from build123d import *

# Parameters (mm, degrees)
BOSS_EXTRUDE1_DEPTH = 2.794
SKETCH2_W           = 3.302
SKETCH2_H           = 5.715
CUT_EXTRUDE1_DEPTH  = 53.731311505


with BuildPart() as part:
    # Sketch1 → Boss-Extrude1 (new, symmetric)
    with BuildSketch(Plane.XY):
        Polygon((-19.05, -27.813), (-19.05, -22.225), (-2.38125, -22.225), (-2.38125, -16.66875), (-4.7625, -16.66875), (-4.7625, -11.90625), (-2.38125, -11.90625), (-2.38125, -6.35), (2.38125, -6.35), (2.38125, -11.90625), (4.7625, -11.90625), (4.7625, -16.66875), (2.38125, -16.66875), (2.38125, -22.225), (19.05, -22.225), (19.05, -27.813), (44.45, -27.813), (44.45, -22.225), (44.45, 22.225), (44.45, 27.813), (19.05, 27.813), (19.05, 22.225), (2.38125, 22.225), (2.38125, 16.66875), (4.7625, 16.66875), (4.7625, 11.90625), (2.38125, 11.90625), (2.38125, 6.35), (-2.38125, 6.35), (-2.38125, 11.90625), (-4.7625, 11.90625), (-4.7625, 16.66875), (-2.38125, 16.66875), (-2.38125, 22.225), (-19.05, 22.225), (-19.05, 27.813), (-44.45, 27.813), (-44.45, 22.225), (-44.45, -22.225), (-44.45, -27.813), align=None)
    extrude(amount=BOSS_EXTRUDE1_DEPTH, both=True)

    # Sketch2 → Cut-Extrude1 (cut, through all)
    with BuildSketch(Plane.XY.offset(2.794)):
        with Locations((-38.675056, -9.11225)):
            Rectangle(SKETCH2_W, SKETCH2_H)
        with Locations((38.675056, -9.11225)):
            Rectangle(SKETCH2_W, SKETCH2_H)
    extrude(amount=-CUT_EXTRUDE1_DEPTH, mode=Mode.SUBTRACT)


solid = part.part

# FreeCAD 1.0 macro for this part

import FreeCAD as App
import Part
import Sketcher

V = App.Vector
Q = App.Units.Quantity

doc = App.newDocument("Part")
body = doc.addObject("PartDesign::Body", "Body")

# Sketch on XY plane
sketch1 = doc.addObject("Sketcher::SketchObject", "Sketch")
body.addObject(sketch1)
sketch1.AttachmentSupport = (doc.XY_Plane, [""])
sketch1.MapMode = "FlatFace"
sketch1.addGeometry([
    Part.LineSegment(V(-19.05, -27.813, 0), V(-19.05, -22.225, 0)),  # 0
    Part.LineSegment(V(-19.05, -22.225, 0), V(-2.38125, -22.225, 0)),  # 1
    Part.LineSegment(V(-2.38125, -22.225, 0), V(-2.38125, -16.66875, 0)),  # 2
    Part.LineSegment(V(-2.38125, -16.66875, 0), V(-4.7625, -16.66875, 0)),  # 3
    Part.LineSegment(V(-4.7625, -16.66875, 0), V(-4.7625, -11.90625, 0)),  # 4
    Part.LineSegment(V(-4.7625, -11.90625, 0), V(-2.38125, -11.90625, 0)),  # 5
    Part.LineSegment(V(-2.38125, -11.90625, 0), V(-2.38125, -6.35, 0)),  # 6
    Part.LineSegment(V(-2.38125, -6.35, 0), V(2.38125, -6.35, 0)),  # 7
    Part.LineSegment(V(2.38125, -6.35, 0), V(2.38125, -11.90625, 0)),  # 8
    Part.LineSegment(V(2.38125, -11.90625, 0), V(4.7625, -11.90625, 0)),  # 9
    Part.LineSegment(V(4.7625, -11.90625, 0), V(4.7625, -16.66875, 0)),  # 10
    Part.LineSegment(V(4.7625, -16.66875, 0), V(2.38125, -16.66875, 0)),  # 11
    Part.LineSegment(V(2.38125, -16.66875, 0), V(2.38125, -22.225, 0)),  # 12
    Part.LineSegment(V(2.38125, -22.225, 0), V(19.05, -22.225, 0)),  # 13
    Part.LineSegment(V(19.05, -22.225, 0), V(19.05, -27.813, 0)),  # 14
    Part.LineSegment(V(19.05, -27.813, 0), V(44.45, -27.813, 0)),  # 15
    Part.LineSegment(V(44.45, -27.813, 0), V(44.45, 27.813, 0)),  # 16
    Part.LineSegment(V(44.45, 27.813, 0), V(19.05, 27.813, 0)),  # 17
    Part.LineSegment(V(19.05, 27.813, 0), V(19.05, 22.225, 0)),  # 18
    Part.LineSegment(V(19.05, 22.225, 0), V(2.38125, 22.225, 0)),  # 19
    Part.LineSegment(V(2.38125, 22.225, 0), V(2.38125, 16.66875, 0)),  # 20
    Part.LineSegment(V(2.38125, 16.66875, 0), V(4.7625, 16.66875, 0)),  # 21
    Part.LineSegment(V(4.7625, 16.66875, 0), V(4.7625, 11.90625, 0)),  # 22
    Part.LineSegment(V(4.7625, 11.90625, 0), V(2.38125, 11.90625, 0)),  # 23
    Part.LineSegment(V(2.38125, 11.90625, 0), V(2.38125, 6.35, 0)),  # 24
    Part.LineSegment(V(2.38125, 6.35, 0), V(-2.38125, 6.35, 0)),  # 25
    Part.LineSegment(V(-2.38125, 6.35, 0), V(-2.38125, 11.90625, 0)),  # 26
    Part.LineSegment(V(-2.38125, 11.90625, 0), V(-4.7625, 11.90625, 0)),  # 27
    Part.LineSegment(V(-4.7625, 11.90625, 0), V(-4.7625, 16.66875, 0)),  # 28
    Part.LineSegment(V(-4.7625, 16.66875, 0), V(-2.38125, 16.66875, 0)),  # 29
    Part.LineSegment(V(-2.38125, 16.66875, 0), V(-2.38125, 22.225, 0)),  # 30
    Part.LineSegment(V(-2.38125, 22.225, 0), V(-19.05, 22.225, 0)),  # 31
    Part.LineSegment(V(-19.05, 22.225, 0), V(-19.05, 27.813, 0)),  # 32
    Part.LineSegment(V(-19.05, 27.813, 0), V(-44.45, 27.813, 0)),  # 33
    Part.LineSegment(V(-44.45, 27.813, 0), V(-44.45, -27.813, 0)),  # 34
    Part.LineSegment(V(-44.45, -27.813, 0), V(-19.05, -27.813, 0)),  # 35
], False)
sketch1.addConstraint([
    Sketcher.Constraint("Coincident", 0, 2, 1, 1),
    Sketcher.Constraint("Coincident", 1, 2, 2, 1),
    Sketcher.Constraint("Coincident", 2, 2, 3, 1),
    Sketcher.Constraint("Coincident", 3, 2, 4, 1),
    Sketcher.Constraint("Coincident", 4, 2, 5, 1),
    Sketcher.Constraint("Coincident", 5, 2, 6, 1),
    Sketcher.Constraint("Coincident", 6, 2, 7, 1),
    Sketcher.Constraint("Coincident", 7, 2, 8, 1),
    Sketcher.Constraint("Coincident", 8, 2, 9, 1),
    Sketcher.Constraint("Coincident", 9, 2, 10, 1),
    Sketcher.Constraint("Coincident", 10, 2, 11, 1),
    Sketcher.Constraint("Coincident", 11, 2, 12, 1),
    Sketcher.Constraint("Coincident", 12, 2, 13, 1),
    Sketcher.Constraint("Coincident", 13, 2, 14, 1),
    Sketcher.Constraint("Coincident", 14, 2, 15, 1),
    Sketcher.Constraint("Coincident", 15, 2, 16, 1),
    Sketcher.Constraint("Coincident", 16, 2, 17, 1),
    Sketcher.Constraint("Coincident", 17, 2, 18, 1),
    Sketcher.Constraint("Coincident", 18, 2, 19, 1),
    Sketcher.Constraint("Coincident", 19, 2, 20, 1),
    Sketcher.Constraint("Coincident", 20, 2, 21, 1),
    Sketcher.Constraint("Coincident", 21, 2, 22, 1),
    Sketcher.Constraint("Coincident", 22, 2, 23, 1),
    Sketcher.Constraint("Coincident", 23, 2, 24, 1),
    Sketcher.Constraint("Coincident", 24, 2, 25, 1),
    Sketcher.Constraint("Coincident", 25, 2, 26, 1),
    Sketcher.Constraint("Coincident", 26, 2, 27, 1),
    Sketcher.Constraint("Coincident", 27, 2, 28, 1),
    Sketcher.Constraint("Coincident", 28, 2, 29, 1),
    Sketcher.Constraint("Coincident", 29, 2, 30, 1),
    Sketcher.Constraint("Coincident", 30, 2, 31, 1),
    Sketcher.Constraint("Coincident", 31, 2, 32, 1),
    Sketcher.Constraint("Coincident", 32, 2, 33, 1),
    Sketcher.Constraint("Coincident", 33, 2, 34, 1),
    Sketcher.Constraint("Coincident", 34, 2, 35, 1),
    Sketcher.Constraint("Coincident", 35, 2, 0, 1),
    Sketcher.Constraint("Vertical", 0),
    Sketcher.Constraint("Horizontal", 1),
    Sketcher.Constraint("Vertical", 2),
    Sketcher.Constraint("Horizontal", 3),
    Sketcher.Constraint("Vertical", 4),
    Sketcher.Constraint("Horizontal", 5),
    Sketcher.Constraint("Vertical", 6),
    Sketcher.Constraint("Horizontal", 7),
    Sketcher.Constraint("Vertical", 8),
    Sketcher.Constraint("Horizontal", 9),
    Sketcher.Constraint("Vertical", 10),
    Sketcher.Constraint("Horizontal", 11),
    Sketcher.Constraint("Vertical", 12),
    Sketcher.Constraint("Horizontal", 13),
    Sketcher.Constraint("Vertical", 14),
    Sketcher.Constraint("Horizontal", 15),
    Sketcher.Constraint("Vertical", 16),
    Sketcher.Constraint("Horizontal", 17),
    Sketcher.Constraint("Vertical", 18),
    Sketcher.Constraint("Horizontal", 19),
    Sketcher.Constraint("Vertical", 20),
    Sketcher.Constraint("Horizontal", 21),
    Sketcher.Constraint("Vertical", 22),
    Sketcher.Constraint("Horizontal", 23),
    Sketcher.Constraint("Vertical", 24),
    Sketcher.Constraint("Horizontal", 25),
    Sketcher.Constraint("Vertical", 26),
    Sketcher.Constraint("Horizontal", 27),
    Sketcher.Constraint("Vertical", 28),
    Sketcher.Constraint("Horizontal", 29),
    Sketcher.Constraint("Vertical", 30),
    Sketcher.Constraint("Horizontal", 31),
    Sketcher.Constraint("Vertical", 32),
    Sketcher.Constraint("Horizontal", 33),
    Sketcher.Constraint("Vertical", 34),
    Sketcher.Constraint("Horizontal", 35),
    Sketcher.Constraint("Symmetric", 0, 2, 18, 2, -1, 1),
    Sketcher.Constraint("Symmetric", 2, 2, 20, 2, -1, 1),
    Sketcher.Constraint("Symmetric", 4, 2, 22, 2, -1, 1),
    Sketcher.Constraint("Symmetric", 6, 2, 24, 2, -1, 1),
    Sketcher.Constraint("Symmetric", 8, 2, 26, 2, -1, 1),
    Sketcher.Constraint("Symmetric", 10, 2, 28, 2, -1, 1),
    Sketcher.Constraint("Symmetric", 12, 2, 30, 2, -1, 1),
    Sketcher.Constraint("Symmetric", 14, 2, 32, 2, -1, 1),
    Sketcher.Constraint("Symmetric", 16, 2, 34, 2, -1, 1),
    Sketcher.Constraint("Symmetric", 5, 2, 8, 2, -2),
    Sketcher.Constraint("Symmetric", 3, 2, 10, 2, -2),
    Sketcher.Constraint("Symmetric", 1, 2, 12, 2, -2),
    Sketcher.Constraint("Symmetric", 17, 2, 32, 2, -2),
    Sketcher.Constraint("Vertical", 2, 2, 5, 2),
    Sketcher.Constraint("Equal", 25, 4),
    Sketcher.Constraint("Equal", 2, 6),
    Sketcher.Constraint("DistanceX", 15, 1, 15, 2, Q("1 in")),
    Sketcher.Constraint("DistanceY", 0, 1, 0, 2, Q("0.22 in")),
    Sketcher.Constraint("DistanceY", 16, 1, 16, 2, Q("2.19 in")),
    Sketcher.Constraint("DistanceY", 7, 2, 24, 2, Q("0.5 in")),
    Sketcher.Constraint("DistanceX", 1, 1, 1, 2, Q("0.65625 in")),
    Sketcher.Constraint("DistanceX", 3, 2, 3, 1, Q("0.09375 in")),
    Sketcher.Constraint("DistanceX", 7, 1, 7, 2, Q("0.1875 in")),
])
pad1 = doc.addObject("PartDesign::Pad", "Pad")
body.addObject(pad1)
pad1.Profile = sketch1
pad1.Length = Q("0.22 in")
pad1.Midplane = True

# Sketch on XY plane
sketch2 = doc.addObject("Sketcher::SketchObject", "Sketch001")
body.addObject(sketch2)
sketch2.AttachmentSupport = (doc.XY_Plane, [""])
sketch2.MapMode = "FlatFace"
sketch2.AttachmentOffset = App.Placement(V(0, 0, 0.11 * 25.4), App.Rotation())
sketch2.addGeometry([
    Part.LineSegment(V(-40.326056, -6.25475, 0), V(-40.326056, -11.96975, 0)),  # 0
    Part.LineSegment(V(-40.326056, -11.96975, 0), V(-37.024056, -11.96975, 0)),  # 1
    Part.LineSegment(V(-37.024056, -11.96975, 0), V(-37.024056, -6.25475, 0)),  # 2
    Part.LineSegment(V(-37.024056, -6.25475, 0), V(-40.326056, -6.25475, 0)),  # 3
    Part.LineSegment(V(37.024056, -6.25475, 0), V(37.024056, -11.96975, 0)),  # 4
    Part.LineSegment(V(37.024056, -11.96975, 0), V(40.326056, -11.96975, 0)),  # 5
    Part.LineSegment(V(40.326056, -11.96975, 0), V(40.326056, -6.25475, 0)),  # 6
    Part.LineSegment(V(40.326056, -6.25475, 0), V(37.024056, -6.25475, 0)),  # 7
], False)
sketch2.addConstraint([
    Sketcher.Constraint("Coincident", 0, 2, 1, 1),
    Sketcher.Constraint("Coincident", 1, 2, 2, 1),
    Sketcher.Constraint("Coincident", 2, 2, 3, 1),
    Sketcher.Constraint("Coincident", 3, 2, 0, 1),
    Sketcher.Constraint("Coincident", 4, 2, 5, 1),
    Sketcher.Constraint("Coincident", 5, 2, 6, 1),
    Sketcher.Constraint("Coincident", 6, 2, 7, 1),
    Sketcher.Constraint("Coincident", 7, 2, 4, 1),
    Sketcher.Constraint("Vertical", 0),
    Sketcher.Constraint("Horizontal", 1),
    Sketcher.Constraint("Vertical", 2),
    Sketcher.Constraint("Horizontal", 3),
    Sketcher.Constraint("Vertical", 4),
    Sketcher.Constraint("Horizontal", 5),
    Sketcher.Constraint("Vertical", 6),
    Sketcher.Constraint("Horizontal", 7),
    Sketcher.Constraint("Symmetric", 1, 2, 4, 2, -2),
    Sketcher.Constraint("Symmetric", 3, 2, 6, 2, -2),
    Sketcher.Constraint("DistanceX", 1, 1, 1, 2, Q("0.13 in")),
    Sketcher.Constraint("DistanceY", 0, 2, 0, 1, Q("0.225 in")),
    Sketcher.Constraint("DistanceY", 0, 2, -1, 1, 11.96975),
    Sketcher.Constraint("DistanceX", 0, 2, 4, 2, 77.350112),
])
pocket1 = doc.addObject("PartDesign::Pocket", "Pocket")
body.addObject(pocket1)
pocket1.Profile = sketch2
pocket1.Type = "ThroughAll"

doc.recompute()
